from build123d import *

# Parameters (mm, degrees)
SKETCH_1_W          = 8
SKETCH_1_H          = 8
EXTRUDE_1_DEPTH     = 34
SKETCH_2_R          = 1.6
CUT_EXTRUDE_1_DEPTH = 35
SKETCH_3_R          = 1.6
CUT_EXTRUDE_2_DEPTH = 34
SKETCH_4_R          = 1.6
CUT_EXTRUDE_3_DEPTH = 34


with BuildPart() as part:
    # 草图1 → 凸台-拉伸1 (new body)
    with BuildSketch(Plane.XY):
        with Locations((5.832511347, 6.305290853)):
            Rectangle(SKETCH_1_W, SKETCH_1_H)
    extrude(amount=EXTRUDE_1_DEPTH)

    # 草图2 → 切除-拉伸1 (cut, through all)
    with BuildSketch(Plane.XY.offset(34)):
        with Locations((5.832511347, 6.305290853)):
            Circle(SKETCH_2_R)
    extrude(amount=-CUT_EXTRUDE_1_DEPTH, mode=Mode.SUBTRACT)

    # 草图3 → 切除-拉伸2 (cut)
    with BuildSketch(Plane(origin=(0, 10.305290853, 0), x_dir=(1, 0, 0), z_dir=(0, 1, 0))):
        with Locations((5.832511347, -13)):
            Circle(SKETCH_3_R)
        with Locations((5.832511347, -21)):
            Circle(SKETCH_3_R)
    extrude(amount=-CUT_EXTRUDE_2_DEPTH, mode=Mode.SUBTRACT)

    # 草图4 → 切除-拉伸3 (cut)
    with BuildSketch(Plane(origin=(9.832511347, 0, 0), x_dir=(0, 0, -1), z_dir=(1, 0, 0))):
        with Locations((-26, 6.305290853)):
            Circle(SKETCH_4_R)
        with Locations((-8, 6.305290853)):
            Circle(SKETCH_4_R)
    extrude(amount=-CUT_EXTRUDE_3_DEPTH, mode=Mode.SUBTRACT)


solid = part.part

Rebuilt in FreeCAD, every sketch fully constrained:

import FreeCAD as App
import Part
import Sketcher
from FreeCAD import Vector

doc = App.newDocument("Part")
body = doc.addObject("PartDesign::Body", "Body")

sketch1 = body.newObject("Sketcher::SketchObject", "Sketch")
sketch1.AttachmentSupport = (doc.getObject("XY_Plane"), [""])
sketch1.MapMode = "FlatFace"
sketch1.addGeometry(Part.LineSegment(Vector(2, 10, 0), Vector(2, 2, 0)), False)
sketch1.addGeometry(Part.LineSegment(Vector(2, 2, 0), Vector(10, 2, 0)), False)
sketch1.addGeometry(Part.LineSegment(Vector(10, 2, 0), Vector(10, 10, 0)), False)
sketch1.addGeometry(Part.LineSegment(Vector(10, 10, 0), Vector(2, 10, 0)), False)
sketch1.addConstraint(Sketcher.Constraint("Coincident", 0, 2, 1, 1))
sketch1.addConstraint(Sketcher.Constraint("Coincident", 1, 2, 2, 1))
sketch1.addConstraint(Sketcher.Constraint("Coincident", 2, 2, 3, 1))
sketch1.addConstraint(Sketcher.Constraint("Coincident", 3, 2, 0, 1))
sketch1.addConstraint(Sketcher.Constraint("Vertical", 0))
sketch1.addConstraint(Sketcher.Constraint("Horizontal", 1))
sketch1.addConstraint(Sketcher.Constraint("Vertical", 2))
sketch1.addConstraint(Sketcher.Constraint("Horizontal", 3))
sketch1.addConstraint(Sketcher.Constraint("Equal", 3, 0))
sketch1.addConstraint(Sketcher.Constraint("DistanceX", 1, 1, 1, 2, 8.0))
sketch1.addConstraint(Sketcher.Constraint("DistanceX", -1, 1, 0, 2, 1.832511))
sketch1.addConstraint(Sketcher.Constraint("DistanceY", -1, 1, 0, 2, 2.305291))
pad1 = body.newObject("PartDesign::Pad", "Pad")
pad1.Profile = sketch1
pad1.Length = 34

sketch2 = body.newObject("Sketcher::SketchObject", "Sketch001")
sketch2.AttachmentSupport = (doc.getObject("XY_Plane"), [""])
sketch2.MapMode = "FlatFace"
sketch2.AttachmentOffset = App.Placement(Vector(0, 0, 34), App.Rotation())
sketch2.addGeometry(Part.Circle(Vector(5.8, 6.3, 0), Vector(0, 0, 1), 1.6), False)
sketch2.addConstraint(Sketcher.Constraint("Diameter", 0, 3.2))
sketch2.addConstraint(Sketcher.Constraint("DistanceX", -1, 1, 0, 3, 5.832511))
sketch2.addConstraint(Sketcher.Constraint("DistanceY", -1, 1, 0, 3, 6.305291))
pocket1 = body.newObject("PartDesign::Pocket", "Pocket")
pocket1.Profile = sketch2
pocket1.Type = "ThroughAll"

sketch3 = body.newObject("Sketcher::SketchObject", "Sketch002")
sketch3.AttachmentSupport = (doc.getObject("XZ_Plane"), [""])
sketch3.MapMode = "FlatFace"
sketch3.AttachmentOffset = App.Placement(Vector(0, 0, -10.305291), App.Rotation())
sketch3.addGeometry(Part.Circle(Vector(5.8, 13, 0), Vector(0, 0, 1), 1.6), False)
sketch3.addGeometry(Part.Circle(Vector(5.8, 21, 0), Vector(0, 0, 1), 1.6), False)
sketch3.addConstraint(Sketcher.Constraint("Equal", 0, 1))
sketch3.addConstraint(Sketcher.Constraint("Vertical", 0, 3, 1, 3))
sketch3.addConstraint(Sketcher.Constraint("Diameter", 0, 3.2))
sketch3.addConstraint(Sketcher.Constraint("DistanceY", -1, 1, 0, 3, 13.0))
sketch3.addConstraint(Sketcher.Constraint("DistanceY", -1, 1, 1, 3, 21.0))
sketch3.addConstraint(Sketcher.Constraint("DistanceX", -1, 1, 0, 3, 5.832511))
pocket2 = body.newObject("PartDesign::Pocket", "Pocket001")
pocket2.Profile = sketch3
pocket2.Length = 34
pocket2.Reversed = True

sketch4 = body.newObject("Sketcher::SketchObject", "Sketch003")
sketch4.AttachmentSupport = (doc.getObject("YZ_Plane"), [""])
sketch4.MapMode = "FlatFace"
sketch4.AttachmentOffset = App.Placement(Vector(0, 0, 9.832511), App.Rotation())
sketch4.addGeometry(Part.Circle(Vector(6.3, 26, 0), Vector(0, 0, 1), 1.6), False)
sketch4.addGeometry(Part.Circle(Vector(6.3, 8, 0), Vector(0, 0, 1), 1.6), False)
sketch4.addConstraint(Sketcher.Constraint("Equal", 0, 1))
sketch4.addConstraint(Sketcher.Constraint("Vertical", 0, 3, 1, 3))
sketch4.addConstraint(Sketcher.Constraint("Diameter", 0, 3.2))
sketch4.addConstraint(Sketcher.Constraint("DistanceY", -1, 1, 0, 3, 26.0))
sketch4.addConstraint(Sketcher.Constraint("DistanceY", -1, 1, 1, 3, 8.0))
sketch4.addConstraint(Sketcher.Constraint("DistanceX", -1, 1, 0, 3, 6.305291))
pocket3 = body.newObject("PartDesign::Pocket", "Pocket002")
pocket3.Profile = sketch4
pocket3.Length = 34

doc.recompute()
